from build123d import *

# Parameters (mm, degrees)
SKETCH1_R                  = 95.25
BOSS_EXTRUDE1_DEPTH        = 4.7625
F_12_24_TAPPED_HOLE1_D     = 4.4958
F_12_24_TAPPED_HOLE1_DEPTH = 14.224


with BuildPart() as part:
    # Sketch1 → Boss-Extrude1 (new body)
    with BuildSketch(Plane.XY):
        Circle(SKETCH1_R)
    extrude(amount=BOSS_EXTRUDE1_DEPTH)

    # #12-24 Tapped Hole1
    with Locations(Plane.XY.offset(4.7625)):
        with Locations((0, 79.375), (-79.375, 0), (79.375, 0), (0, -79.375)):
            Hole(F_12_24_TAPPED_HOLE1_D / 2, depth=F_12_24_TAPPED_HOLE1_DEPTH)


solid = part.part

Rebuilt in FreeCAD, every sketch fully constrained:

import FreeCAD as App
import Part
import Sketcher
from FreeCAD import Vector
Q = App.Units.Quantity

doc = App.newDocument("Part")
body = doc.addObject("PartDesign::Body", "Body")

# Sketch on XY plane
sketch1 = doc.addObject("Sketcher::SketchObject", "Sketch")
body.addObject(sketch1)
sketch1.AttachmentSupport = (doc.XY_Plane, [""])
sketch1.MapMode = "FlatFace"
sketch1.addGeometry(Part.Circle(Vector(0, 0, 0), Vector(0, 0, 1), 95), False)
sketch1.addConstraint(Sketcher.Constraint("Coincident", 0, 3, -1, 1))
sketch1.addConstraint(Sketcher.Constraint("Diameter", 0, Q("7.5 in")))
pad1 = doc.addObject("PartDesign::Pad", "Pad")
body.addObject(pad1)
pad1.Profile = sketch1
pad1.Length = Q("0.1875 in")

# Sketch on XY plane
sketch2 = doc.addObject("Sketcher::SketchObject", "Sketch001")
body.addObject(sketch2)
sketch2.AttachmentSupport = (doc.XY_Plane, [""])
sketch2.MapMode = "FlatFace"
sketch2.AttachmentOffset = App.Placement(Vector(0, 0, 0.1875 * 25.4), App.Rotation())
sketch2.addGeometry(Part.Circle(Vector(0, 79.4, 0), Vector(0, 0, 1), 2.2), False)
sketch2.addGeometry(Part.Circle(Vector(-79.4, 0, 0), Vector(0, 0, 1), 2.2), False)
sketch2.addGeometry(Part.Circle(Vector(79.4, 0, 0), Vector(0, 0, 1), 2.2), False)
sketch2.addGeometry(Part.Circle(Vector(0, -79.4, 0), Vector(0, 0, 1), 2.2), False)
sketch2.addConstraint(Sketcher.Constraint("Equal", 0, 1))
sketch2.addConstraint(Sketcher.Constraint("Equal", 1, 2))
sketch2.addConstraint(Sketcher.Constraint("Equal", 2, 3))
sketch2.addConstraint(Sketcher.Constraint("Symmetric", 1, 3, 2, 3, -1, 1))
sketch2.addConstraint(Sketcher.Constraint("Symmetric", 0, 3, 3, 3, -1, 1))
sketch2.addConstraint(Sketcher.Constraint("PointOnObject", 0, 3, -2))
sketch2.addConstraint(Sketcher.Constraint("PointOnObject", 1, 3, -1))
sketch2.addConstraint(Sketcher.Constraint("Diameter", 0, Q("0.177 in")))
sketch2.addConstraint(Sketcher.Constraint("DistanceX", 1, 3, 2, 3, Q("6.25 in")))
sketch2.addConstraint(Sketcher.Constraint("DistanceY", 3, 3, 0, 3, Q("6.25 in")))
doc.recompute()
hole = doc.addObject("PartDesign::Hole", "Hole")
body.addObject(hole)
hole.Profile = sketch2
hole.ThreadType = "None"
hole.Diameter = Q("0.177 in")
hole.DepthType = "Dimension"
hole.Depth = Q("0.56 in")
hole.DrillPoint = "Flat"

doc.recompute()
